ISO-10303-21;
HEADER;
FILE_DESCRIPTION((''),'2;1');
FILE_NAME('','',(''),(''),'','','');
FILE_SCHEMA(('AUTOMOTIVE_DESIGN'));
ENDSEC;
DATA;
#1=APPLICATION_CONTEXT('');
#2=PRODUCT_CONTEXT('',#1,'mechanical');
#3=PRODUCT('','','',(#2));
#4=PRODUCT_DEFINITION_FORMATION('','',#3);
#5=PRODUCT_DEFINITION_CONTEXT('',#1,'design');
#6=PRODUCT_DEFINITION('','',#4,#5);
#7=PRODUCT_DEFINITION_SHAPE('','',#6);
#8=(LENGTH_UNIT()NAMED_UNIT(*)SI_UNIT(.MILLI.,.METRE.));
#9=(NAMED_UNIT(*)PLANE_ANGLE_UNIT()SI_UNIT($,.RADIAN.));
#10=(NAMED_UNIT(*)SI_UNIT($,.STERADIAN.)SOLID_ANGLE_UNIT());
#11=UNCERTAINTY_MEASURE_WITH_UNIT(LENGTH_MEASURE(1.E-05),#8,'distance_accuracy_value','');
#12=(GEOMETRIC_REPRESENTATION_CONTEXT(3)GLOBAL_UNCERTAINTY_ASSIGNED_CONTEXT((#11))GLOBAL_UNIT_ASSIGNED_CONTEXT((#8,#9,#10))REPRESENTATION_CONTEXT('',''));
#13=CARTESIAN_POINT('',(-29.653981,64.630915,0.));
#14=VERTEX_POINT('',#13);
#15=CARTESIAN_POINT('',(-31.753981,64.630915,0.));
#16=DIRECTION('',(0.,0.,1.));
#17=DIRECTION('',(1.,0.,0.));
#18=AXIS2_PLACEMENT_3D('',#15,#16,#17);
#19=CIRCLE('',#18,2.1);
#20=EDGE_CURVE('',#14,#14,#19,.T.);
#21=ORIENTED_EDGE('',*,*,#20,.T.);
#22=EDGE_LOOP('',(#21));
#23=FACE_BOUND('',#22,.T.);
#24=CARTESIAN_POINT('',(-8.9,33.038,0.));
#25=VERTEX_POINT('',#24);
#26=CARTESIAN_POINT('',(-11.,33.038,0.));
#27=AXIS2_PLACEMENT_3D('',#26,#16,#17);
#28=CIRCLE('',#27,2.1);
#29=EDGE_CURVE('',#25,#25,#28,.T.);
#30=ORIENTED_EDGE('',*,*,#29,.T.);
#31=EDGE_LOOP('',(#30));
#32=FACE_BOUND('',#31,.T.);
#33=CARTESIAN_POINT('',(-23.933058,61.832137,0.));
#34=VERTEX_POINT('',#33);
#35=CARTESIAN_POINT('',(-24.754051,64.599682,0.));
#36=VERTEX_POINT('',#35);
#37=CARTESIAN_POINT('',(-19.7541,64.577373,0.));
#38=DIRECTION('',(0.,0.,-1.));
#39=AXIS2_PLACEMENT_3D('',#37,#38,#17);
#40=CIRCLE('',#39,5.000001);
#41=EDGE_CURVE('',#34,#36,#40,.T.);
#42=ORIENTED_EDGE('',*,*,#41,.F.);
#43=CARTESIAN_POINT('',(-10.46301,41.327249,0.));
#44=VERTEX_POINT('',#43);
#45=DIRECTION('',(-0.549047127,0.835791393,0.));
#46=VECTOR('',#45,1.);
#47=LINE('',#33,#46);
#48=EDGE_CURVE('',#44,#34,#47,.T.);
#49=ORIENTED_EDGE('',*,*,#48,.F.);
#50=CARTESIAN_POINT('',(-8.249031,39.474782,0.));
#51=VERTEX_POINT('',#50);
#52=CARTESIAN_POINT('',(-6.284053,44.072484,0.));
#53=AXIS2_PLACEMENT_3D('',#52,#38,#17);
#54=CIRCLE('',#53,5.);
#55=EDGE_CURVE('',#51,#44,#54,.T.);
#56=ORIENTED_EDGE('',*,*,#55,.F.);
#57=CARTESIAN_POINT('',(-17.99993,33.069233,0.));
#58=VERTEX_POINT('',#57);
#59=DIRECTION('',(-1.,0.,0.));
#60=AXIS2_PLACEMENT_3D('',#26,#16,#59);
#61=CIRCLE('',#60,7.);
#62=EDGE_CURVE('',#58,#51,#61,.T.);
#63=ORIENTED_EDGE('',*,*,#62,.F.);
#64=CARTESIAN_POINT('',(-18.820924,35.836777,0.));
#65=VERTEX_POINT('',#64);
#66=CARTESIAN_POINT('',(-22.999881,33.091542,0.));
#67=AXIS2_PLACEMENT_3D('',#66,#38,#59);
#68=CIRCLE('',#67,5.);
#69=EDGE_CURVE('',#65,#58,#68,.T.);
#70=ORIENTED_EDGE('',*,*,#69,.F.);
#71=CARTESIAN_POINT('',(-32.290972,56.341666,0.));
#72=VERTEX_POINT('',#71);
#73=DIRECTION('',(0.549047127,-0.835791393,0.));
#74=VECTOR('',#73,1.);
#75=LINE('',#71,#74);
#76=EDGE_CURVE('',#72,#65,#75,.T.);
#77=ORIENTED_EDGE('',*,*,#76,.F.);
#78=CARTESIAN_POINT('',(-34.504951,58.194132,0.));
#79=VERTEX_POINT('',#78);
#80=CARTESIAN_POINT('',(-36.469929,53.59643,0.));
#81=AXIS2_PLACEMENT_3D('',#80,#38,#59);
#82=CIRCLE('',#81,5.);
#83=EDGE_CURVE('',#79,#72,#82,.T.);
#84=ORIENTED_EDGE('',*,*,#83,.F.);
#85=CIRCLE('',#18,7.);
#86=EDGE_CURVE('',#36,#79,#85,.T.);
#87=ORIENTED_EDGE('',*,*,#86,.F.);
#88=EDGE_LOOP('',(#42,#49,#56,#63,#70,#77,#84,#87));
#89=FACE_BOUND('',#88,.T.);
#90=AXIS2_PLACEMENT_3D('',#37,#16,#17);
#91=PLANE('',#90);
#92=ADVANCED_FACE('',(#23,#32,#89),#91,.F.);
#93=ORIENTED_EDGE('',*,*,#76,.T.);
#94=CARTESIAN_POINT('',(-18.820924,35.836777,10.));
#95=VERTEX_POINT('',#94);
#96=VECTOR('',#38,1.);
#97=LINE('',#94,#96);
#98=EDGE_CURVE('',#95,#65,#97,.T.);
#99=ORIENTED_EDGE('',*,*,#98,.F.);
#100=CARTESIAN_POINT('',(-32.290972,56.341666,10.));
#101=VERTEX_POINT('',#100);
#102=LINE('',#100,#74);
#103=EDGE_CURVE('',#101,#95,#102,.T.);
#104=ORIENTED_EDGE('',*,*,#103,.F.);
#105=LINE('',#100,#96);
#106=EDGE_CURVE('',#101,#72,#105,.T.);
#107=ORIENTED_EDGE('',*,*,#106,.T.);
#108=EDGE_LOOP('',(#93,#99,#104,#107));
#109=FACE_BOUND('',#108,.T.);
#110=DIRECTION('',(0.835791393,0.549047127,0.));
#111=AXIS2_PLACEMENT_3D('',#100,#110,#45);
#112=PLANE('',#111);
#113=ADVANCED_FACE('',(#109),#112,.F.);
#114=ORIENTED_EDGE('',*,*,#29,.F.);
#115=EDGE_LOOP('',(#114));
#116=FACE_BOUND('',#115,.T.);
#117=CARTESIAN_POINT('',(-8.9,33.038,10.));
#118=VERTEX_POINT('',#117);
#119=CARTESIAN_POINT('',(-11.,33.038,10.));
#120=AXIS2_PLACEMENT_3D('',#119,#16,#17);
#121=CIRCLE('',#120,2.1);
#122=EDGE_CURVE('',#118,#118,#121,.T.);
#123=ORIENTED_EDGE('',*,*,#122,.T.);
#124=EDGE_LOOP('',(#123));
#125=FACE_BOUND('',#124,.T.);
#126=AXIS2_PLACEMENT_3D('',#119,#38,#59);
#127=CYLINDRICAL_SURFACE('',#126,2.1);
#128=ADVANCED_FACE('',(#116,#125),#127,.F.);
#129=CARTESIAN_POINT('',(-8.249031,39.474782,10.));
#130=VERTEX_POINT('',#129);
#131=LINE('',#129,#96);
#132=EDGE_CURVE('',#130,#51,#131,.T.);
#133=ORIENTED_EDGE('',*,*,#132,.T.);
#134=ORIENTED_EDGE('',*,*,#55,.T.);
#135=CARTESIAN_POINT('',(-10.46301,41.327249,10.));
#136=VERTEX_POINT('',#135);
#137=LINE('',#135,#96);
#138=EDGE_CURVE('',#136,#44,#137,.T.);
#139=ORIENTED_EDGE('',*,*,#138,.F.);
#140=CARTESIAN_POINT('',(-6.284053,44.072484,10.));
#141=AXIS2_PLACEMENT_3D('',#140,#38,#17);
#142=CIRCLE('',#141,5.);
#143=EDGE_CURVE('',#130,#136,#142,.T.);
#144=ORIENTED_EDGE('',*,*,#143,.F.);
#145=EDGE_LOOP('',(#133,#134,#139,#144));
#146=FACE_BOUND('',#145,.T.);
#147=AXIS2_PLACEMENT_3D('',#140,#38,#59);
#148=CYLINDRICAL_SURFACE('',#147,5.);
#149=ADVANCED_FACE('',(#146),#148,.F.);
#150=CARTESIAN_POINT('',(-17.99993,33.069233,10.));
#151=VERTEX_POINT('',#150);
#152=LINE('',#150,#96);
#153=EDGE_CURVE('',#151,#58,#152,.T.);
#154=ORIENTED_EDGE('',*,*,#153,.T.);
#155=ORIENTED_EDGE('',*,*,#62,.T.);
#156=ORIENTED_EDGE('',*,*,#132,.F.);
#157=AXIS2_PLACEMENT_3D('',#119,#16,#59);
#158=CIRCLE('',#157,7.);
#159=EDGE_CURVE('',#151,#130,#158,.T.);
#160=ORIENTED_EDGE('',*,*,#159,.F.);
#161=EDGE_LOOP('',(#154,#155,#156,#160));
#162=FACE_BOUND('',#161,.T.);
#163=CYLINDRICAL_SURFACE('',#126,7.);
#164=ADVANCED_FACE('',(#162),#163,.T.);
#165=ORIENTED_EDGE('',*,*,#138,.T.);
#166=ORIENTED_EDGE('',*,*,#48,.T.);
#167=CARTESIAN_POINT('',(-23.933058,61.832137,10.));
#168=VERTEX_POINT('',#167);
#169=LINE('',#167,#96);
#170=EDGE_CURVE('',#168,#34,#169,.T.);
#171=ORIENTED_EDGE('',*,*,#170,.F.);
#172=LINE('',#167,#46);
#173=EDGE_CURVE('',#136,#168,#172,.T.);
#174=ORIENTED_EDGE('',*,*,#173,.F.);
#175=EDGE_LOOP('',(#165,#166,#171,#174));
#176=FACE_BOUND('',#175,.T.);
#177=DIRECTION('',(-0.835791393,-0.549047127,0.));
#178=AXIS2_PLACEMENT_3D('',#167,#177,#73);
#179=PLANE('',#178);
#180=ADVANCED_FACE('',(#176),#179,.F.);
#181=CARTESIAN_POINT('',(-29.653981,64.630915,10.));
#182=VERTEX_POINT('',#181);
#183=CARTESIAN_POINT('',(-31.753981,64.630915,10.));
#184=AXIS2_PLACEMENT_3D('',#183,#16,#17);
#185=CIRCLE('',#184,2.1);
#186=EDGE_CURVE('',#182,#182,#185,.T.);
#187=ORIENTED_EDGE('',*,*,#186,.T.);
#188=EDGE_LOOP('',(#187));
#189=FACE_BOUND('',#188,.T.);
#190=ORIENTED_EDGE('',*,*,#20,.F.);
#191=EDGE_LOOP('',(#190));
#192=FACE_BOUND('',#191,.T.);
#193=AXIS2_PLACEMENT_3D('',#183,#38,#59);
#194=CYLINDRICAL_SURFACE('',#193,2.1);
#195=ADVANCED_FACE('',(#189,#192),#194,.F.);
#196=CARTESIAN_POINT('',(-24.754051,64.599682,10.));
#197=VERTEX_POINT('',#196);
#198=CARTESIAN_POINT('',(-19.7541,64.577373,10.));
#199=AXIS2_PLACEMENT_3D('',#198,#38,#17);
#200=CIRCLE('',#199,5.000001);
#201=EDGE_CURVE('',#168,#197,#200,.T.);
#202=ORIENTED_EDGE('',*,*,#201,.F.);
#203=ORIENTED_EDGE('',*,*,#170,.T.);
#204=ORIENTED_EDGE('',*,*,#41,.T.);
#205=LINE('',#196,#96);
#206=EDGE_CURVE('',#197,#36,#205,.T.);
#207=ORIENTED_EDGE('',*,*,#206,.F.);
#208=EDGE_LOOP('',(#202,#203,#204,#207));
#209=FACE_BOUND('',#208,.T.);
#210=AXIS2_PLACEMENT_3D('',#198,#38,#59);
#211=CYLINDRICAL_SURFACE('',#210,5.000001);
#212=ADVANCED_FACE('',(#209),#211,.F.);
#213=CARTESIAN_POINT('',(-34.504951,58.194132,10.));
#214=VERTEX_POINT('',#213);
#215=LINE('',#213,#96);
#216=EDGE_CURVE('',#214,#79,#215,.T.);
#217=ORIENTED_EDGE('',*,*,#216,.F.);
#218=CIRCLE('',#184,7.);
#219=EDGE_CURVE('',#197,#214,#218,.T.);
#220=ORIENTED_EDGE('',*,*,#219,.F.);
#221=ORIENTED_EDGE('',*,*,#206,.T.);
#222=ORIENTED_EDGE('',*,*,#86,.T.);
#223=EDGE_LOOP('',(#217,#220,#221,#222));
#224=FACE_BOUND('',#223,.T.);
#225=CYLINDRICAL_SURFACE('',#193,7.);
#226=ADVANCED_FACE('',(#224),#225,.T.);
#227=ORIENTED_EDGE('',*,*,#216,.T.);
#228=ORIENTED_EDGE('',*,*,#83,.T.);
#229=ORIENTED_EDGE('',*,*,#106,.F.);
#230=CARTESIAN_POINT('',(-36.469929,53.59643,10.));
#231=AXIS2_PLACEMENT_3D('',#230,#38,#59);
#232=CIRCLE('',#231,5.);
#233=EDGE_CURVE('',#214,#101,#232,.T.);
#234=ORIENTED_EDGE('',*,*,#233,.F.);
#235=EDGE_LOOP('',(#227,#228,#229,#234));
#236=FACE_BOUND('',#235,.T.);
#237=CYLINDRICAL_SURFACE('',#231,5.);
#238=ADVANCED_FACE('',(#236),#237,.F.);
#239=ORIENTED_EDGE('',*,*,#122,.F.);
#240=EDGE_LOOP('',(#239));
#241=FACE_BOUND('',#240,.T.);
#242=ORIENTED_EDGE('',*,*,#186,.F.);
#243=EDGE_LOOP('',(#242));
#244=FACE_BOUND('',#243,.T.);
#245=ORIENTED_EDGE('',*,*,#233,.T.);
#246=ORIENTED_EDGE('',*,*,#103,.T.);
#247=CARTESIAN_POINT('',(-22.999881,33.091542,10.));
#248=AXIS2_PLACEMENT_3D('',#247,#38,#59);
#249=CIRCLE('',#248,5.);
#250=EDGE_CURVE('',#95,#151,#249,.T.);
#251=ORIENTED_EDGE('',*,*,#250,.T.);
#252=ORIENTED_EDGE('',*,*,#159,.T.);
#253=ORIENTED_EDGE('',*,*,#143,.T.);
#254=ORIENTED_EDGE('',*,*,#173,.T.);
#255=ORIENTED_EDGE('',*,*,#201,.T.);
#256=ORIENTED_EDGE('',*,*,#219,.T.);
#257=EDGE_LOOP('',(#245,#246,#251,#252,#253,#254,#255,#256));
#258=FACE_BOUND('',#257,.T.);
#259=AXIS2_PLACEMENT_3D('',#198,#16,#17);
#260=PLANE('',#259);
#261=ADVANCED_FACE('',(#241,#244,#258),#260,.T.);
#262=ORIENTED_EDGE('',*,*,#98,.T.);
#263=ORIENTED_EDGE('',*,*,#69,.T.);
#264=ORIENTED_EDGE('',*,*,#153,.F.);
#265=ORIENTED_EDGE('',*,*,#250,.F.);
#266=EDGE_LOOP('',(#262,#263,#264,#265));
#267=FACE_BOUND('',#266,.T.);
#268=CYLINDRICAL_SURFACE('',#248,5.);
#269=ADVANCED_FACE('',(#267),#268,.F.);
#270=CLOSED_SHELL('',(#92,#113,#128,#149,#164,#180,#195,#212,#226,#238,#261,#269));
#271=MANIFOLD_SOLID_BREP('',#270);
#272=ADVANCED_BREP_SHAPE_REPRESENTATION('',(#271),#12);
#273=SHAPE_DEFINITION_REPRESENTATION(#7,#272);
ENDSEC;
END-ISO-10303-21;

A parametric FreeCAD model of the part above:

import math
import FreeCAD as App
import Part
import Sketcher

doc = App.newDocument("Part")
params = doc.addObject("Spreadsheet::Sheet", "Params")
for row, (alias, value) in enumerate([
    ("sketch1_radius", "5 mm"),
    ("sketch1_radius2", "7 mm"),
    ("sketch1_diameter", "4.2 mm"),
    ("pad1_length", "10 mm"),
], start=1):
    params.set(f"A{row}", alias)
    params.set(f"B{row}", "=" + value)
    params.setAlias(f"B{row}", alias)

body = doc.addObject("PartDesign::Body", "Body")

# Sketch on XY plane
sketch1 = body.newObject("Sketcher::SketchObject", "Sketch")
sketch1.AttachmentSupport = (doc.getObject("XY_Plane"), [""])
sketch1.MapMode = "FlatFace"
sketch1.addGeometry([
    Part.LineSegment(App.Vector(-32.290972, 56.341666, 0), App.Vector(-18.820924, 35.836777, 0)),  # 0
    Part.ArcOfCircle(Part.Circle(App.Vector(-22.999881, 33.091542, 0), App.Vector(0, 0, 1), 5), math.radians(-0.255643), math.radians(33.301666)),  # 1
    Part.ArcOfCircle(Part.Circle(App.Vector(-11, 33.038, 0), App.Vector(0, 0, 1), 7), math.radians(179.744357), math.radians(426.858974)),  # 2
    Part.ArcOfCircle(Part.Circle(App.Vector(-6.284053, 44.072484, 0), App.Vector(0, 0, 1), 5), math.radians(-146.698334), math.radians(-113.141021)),  # 3
    Part.LineSegment(App.Vector(-10.46301, 41.327249, 0), App.Vector(-23.933058, 61.832137, 0)),  # 4
    Part.ArcOfCircle(Part.Circle(App.Vector(-19.7541, 64.577373, 0), App.Vector(0, 0, 1), 5.000001), math.radians(179.744358), math.radians(213.301666)),  # 5
    Part.ArcOfCircle(Part.Circle(App.Vector(-31.753981, 64.630915, 0), App.Vector(0, 0, 1), 7), math.radians(-0.255642), math.radians(246.858976)),  # 6
    Part.ArcOfCircle(Part.Circle(App.Vector(-36.469929, 53.59643, 0), App.Vector(0, 0, 1), 5), math.radians(33.301666), math.radians(66.858976)),  # 7
    Part.Circle(App.Vector(-11, 33.038, 0), App.Vector(0, 0, 1), 2.1),  # 8
    Part.Circle(App.Vector(-31.753981, 64.630915, 0), App.Vector(0, 0, 1), 2.1),  # 9
], False)
sketch1.addConstraint([
    Sketcher.Constraint("Tangent", 0, 2, 1, 2),
    Sketcher.Constraint("Tangent", 1, 1, 2, 1),
    Sketcher.Constraint("Tangent", 2, 2, 3, 2),
    Sketcher.Constraint("Tangent", 3, 1, 4, 1),
    Sketcher.Constraint("Tangent", 4, 2, 5, 2),
    Sketcher.Constraint("Tangent", 5, 1, 6, 1),
    Sketcher.Constraint("Tangent", 6, 2, 7, 2),
    Sketcher.Constraint("Tangent", 7, 1, 0, 1),
    Sketcher.Constraint("Coincident", 8, 3, 2, 3),
    Sketcher.Constraint("Coincident", 9, 3, 6, 3),
    Sketcher.Constraint("Equal", 1, 3),
    Sketcher.Constraint("Equal", 3, 5),
    Sketcher.Constraint("Equal", 2, 6),
    Sketcher.Constraint("Equal", 5, 7),
    Sketcher.Constraint("Equal", 8, 9),
    Sketcher.Constraint("Parallel", 0, 4),
    Sketcher.Constraint("Equal", 0, 4),
    Sketcher.Constraint("Radius", 1, 5.0),
    Sketcher.Constraint("Radius", 2, 7.0),
    Sketcher.Constraint("Diameter", 8, 4.2),
    Sketcher.Constraint("DistanceX", 2, 3, -1, 1, 11.0),
    Sketcher.Constraint("DistanceY", -1, 1, 2, 3, 33.038),
    Sketcher.Constraint("Distance", 0, 24.533501),
    Sketcher.Constraint("DistanceX", 5, 3, -1, 1, 19.7541),
    Sketcher.Constraint("DistanceY", 2, 2, 3, 3, 4.597702),
    Sketcher.Constraint("DistanceY", -1, 1, 1, 3, 33.091542),
])
sketch1.setExpression("Constraints[17]", "Params.sketch1_radius")
sketch1.setExpression("Constraints[18]", "Params.sketch1_radius2")
sketch1.setExpression("Constraints[19]", "Params.sketch1_diameter")
pad1 = body.newObject("PartDesign::Pad", "Pad")
pad1.Profile = sketch1
pad1.setExpression("Length", "Params.pad1_length")

doc.recompute()
